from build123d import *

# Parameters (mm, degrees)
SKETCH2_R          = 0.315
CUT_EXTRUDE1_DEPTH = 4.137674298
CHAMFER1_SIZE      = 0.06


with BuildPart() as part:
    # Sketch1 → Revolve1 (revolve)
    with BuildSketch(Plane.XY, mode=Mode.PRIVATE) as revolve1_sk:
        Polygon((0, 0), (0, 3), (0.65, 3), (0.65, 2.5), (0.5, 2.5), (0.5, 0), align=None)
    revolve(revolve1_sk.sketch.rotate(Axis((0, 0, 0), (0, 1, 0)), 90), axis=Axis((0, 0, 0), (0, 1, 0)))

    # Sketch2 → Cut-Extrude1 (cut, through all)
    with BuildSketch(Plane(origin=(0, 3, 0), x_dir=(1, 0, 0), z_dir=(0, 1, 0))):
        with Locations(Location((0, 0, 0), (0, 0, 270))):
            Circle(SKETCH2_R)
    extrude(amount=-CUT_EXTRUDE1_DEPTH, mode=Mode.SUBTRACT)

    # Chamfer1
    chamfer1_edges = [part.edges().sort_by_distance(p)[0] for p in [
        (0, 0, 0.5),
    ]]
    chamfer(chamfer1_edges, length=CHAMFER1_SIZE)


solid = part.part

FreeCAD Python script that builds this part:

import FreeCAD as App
import Part
import Sketcher
from FreeCAD import Vector


def edges_at(feature, points):
    """Names of the edges that pass closest to the given points."""
    edges = feature.Shape.Edges
    near = lambda p: min(range(len(edges)), key=lambda i: edges[i].distToShape(Part.Vertex(*p))[0])
    return sorted({f"Edge{near(p) + 1}" for p in points})

doc = App.newDocument("Part")
body = doc.addObject("PartDesign::Body", "Body")

# Sketch on XY plane
sketch1 = body.newObject("Sketcher::SketchObject", "Sketch")
sketch1.AttachmentSupport = (doc.getObject("XY_Plane"), [""])
sketch1.MapMode = "FlatFace"
sketch1.addGeometry(Part.LineSegment(Vector(0, 3, 0), Vector(0, 0, 0)), False)
sketch1.addGeometry(Part.LineSegment(Vector(0, 0, 0), Vector(0.5, 0, 0)), False)
sketch1.addGeometry(Part.LineSegment(Vector(0.5, 0, 0), Vector(0.5, 2.5, 0)), False)
sketch1.addGeometry(Part.LineSegment(Vector(0.5, 2.5, 0), Vector(0.65, 2.5, 0)), False)
sketch1.addGeometry(Part.LineSegment(Vector(0.65, 2.5, 0), Vector(0.65, 3, 0)), False)
sketch1.addGeometry(Part.LineSegment(Vector(0.65, 3, 0), Vector(0, 3, 0)), False)
sketch1.addConstraint(Sketcher.Constraint("Coincident", 0, 2, 1, 1))
sketch1.addConstraint(Sketcher.Constraint("Coincident", 1, 2, 2, 1))
sketch1.addConstraint(Sketcher.Constraint("Coincident", 2, 2, 3, 1))
sketch1.addConstraint(Sketcher.Constraint("Coincident", 3, 2, 4, 1))
sketch1.addConstraint(Sketcher.Constraint("Coincident", 4, 2, 5, 1))
sketch1.addConstraint(Sketcher.Constraint("Coincident", 5, 2, 0, 1))
sketch1.addConstraint(Sketcher.Constraint("Vertical", 0))
sketch1.addConstraint(Sketcher.Constraint("Horizontal", 1))
sketch1.addConstraint(Sketcher.Constraint("Vertical", 2))
sketch1.addConstraint(Sketcher.Constraint("Horizontal", 3))
sketch1.addConstraint(Sketcher.Constraint("Vertical", 4))
sketch1.addConstraint(Sketcher.Constraint("Horizontal", 5))
sketch1.addConstraint(Sketcher.Constraint("Coincident", 0, 2, -1, 1))
sketch1.addConstraint(Sketcher.Constraint("Equal", 1, 4))
sketch1.addConstraint(Sketcher.Constraint("DistanceY", 0, 2, 0, 1, 3.0))
sketch1.addConstraint(Sketcher.Constraint("DistanceX", 1, 1, 1, 2, 0.5))
sketch1.addConstraint(Sketcher.Constraint("DistanceX", 3, 1, 3, 2, 0.15))
revolution = body.newObject("PartDesign::Revolution", "Revolution")
revolution.Profile = sketch1
revolution.ReferenceAxis = (sketch1, ["V_Axis"])
revolution.Angle = 360

# Sketch on XZ plane
sketch2 = body.newObject("Sketcher::SketchObject", "Sketch001")
sketch2.AttachmentSupport = (doc.getObject("XZ_Plane"), [""])
sketch2.MapMode = "FlatFace"
sketch2.AttachmentOffset = App.Placement(Vector(0, 0, -3), App.Rotation())
sketch2.addGeometry(Part.Circle(Vector(0, 0, 0), Vector(0, 0, 1), 0.315), False)
sketch2.addConstraint(Sketcher.Constraint("Coincident", 0, 3, -1, 1))
sketch2.addConstraint(Sketcher.Constraint("Diameter", 0, 0.63))
pocket1 = body.newObject("PartDesign::Pocket", "Pocket")
pocket1.Profile = sketch2
pocket1.Type = "ThroughAll"
pocket1.Reversed = True
doc.recompute()

chamfer = body.newObject("PartDesign::Chamfer", "Chamfer")
chamfer.Base = (pocket1, edges_at(pocket1, [(0, 0, 0.5)]))
chamfer.Size = 0.06

doc.recompute()
